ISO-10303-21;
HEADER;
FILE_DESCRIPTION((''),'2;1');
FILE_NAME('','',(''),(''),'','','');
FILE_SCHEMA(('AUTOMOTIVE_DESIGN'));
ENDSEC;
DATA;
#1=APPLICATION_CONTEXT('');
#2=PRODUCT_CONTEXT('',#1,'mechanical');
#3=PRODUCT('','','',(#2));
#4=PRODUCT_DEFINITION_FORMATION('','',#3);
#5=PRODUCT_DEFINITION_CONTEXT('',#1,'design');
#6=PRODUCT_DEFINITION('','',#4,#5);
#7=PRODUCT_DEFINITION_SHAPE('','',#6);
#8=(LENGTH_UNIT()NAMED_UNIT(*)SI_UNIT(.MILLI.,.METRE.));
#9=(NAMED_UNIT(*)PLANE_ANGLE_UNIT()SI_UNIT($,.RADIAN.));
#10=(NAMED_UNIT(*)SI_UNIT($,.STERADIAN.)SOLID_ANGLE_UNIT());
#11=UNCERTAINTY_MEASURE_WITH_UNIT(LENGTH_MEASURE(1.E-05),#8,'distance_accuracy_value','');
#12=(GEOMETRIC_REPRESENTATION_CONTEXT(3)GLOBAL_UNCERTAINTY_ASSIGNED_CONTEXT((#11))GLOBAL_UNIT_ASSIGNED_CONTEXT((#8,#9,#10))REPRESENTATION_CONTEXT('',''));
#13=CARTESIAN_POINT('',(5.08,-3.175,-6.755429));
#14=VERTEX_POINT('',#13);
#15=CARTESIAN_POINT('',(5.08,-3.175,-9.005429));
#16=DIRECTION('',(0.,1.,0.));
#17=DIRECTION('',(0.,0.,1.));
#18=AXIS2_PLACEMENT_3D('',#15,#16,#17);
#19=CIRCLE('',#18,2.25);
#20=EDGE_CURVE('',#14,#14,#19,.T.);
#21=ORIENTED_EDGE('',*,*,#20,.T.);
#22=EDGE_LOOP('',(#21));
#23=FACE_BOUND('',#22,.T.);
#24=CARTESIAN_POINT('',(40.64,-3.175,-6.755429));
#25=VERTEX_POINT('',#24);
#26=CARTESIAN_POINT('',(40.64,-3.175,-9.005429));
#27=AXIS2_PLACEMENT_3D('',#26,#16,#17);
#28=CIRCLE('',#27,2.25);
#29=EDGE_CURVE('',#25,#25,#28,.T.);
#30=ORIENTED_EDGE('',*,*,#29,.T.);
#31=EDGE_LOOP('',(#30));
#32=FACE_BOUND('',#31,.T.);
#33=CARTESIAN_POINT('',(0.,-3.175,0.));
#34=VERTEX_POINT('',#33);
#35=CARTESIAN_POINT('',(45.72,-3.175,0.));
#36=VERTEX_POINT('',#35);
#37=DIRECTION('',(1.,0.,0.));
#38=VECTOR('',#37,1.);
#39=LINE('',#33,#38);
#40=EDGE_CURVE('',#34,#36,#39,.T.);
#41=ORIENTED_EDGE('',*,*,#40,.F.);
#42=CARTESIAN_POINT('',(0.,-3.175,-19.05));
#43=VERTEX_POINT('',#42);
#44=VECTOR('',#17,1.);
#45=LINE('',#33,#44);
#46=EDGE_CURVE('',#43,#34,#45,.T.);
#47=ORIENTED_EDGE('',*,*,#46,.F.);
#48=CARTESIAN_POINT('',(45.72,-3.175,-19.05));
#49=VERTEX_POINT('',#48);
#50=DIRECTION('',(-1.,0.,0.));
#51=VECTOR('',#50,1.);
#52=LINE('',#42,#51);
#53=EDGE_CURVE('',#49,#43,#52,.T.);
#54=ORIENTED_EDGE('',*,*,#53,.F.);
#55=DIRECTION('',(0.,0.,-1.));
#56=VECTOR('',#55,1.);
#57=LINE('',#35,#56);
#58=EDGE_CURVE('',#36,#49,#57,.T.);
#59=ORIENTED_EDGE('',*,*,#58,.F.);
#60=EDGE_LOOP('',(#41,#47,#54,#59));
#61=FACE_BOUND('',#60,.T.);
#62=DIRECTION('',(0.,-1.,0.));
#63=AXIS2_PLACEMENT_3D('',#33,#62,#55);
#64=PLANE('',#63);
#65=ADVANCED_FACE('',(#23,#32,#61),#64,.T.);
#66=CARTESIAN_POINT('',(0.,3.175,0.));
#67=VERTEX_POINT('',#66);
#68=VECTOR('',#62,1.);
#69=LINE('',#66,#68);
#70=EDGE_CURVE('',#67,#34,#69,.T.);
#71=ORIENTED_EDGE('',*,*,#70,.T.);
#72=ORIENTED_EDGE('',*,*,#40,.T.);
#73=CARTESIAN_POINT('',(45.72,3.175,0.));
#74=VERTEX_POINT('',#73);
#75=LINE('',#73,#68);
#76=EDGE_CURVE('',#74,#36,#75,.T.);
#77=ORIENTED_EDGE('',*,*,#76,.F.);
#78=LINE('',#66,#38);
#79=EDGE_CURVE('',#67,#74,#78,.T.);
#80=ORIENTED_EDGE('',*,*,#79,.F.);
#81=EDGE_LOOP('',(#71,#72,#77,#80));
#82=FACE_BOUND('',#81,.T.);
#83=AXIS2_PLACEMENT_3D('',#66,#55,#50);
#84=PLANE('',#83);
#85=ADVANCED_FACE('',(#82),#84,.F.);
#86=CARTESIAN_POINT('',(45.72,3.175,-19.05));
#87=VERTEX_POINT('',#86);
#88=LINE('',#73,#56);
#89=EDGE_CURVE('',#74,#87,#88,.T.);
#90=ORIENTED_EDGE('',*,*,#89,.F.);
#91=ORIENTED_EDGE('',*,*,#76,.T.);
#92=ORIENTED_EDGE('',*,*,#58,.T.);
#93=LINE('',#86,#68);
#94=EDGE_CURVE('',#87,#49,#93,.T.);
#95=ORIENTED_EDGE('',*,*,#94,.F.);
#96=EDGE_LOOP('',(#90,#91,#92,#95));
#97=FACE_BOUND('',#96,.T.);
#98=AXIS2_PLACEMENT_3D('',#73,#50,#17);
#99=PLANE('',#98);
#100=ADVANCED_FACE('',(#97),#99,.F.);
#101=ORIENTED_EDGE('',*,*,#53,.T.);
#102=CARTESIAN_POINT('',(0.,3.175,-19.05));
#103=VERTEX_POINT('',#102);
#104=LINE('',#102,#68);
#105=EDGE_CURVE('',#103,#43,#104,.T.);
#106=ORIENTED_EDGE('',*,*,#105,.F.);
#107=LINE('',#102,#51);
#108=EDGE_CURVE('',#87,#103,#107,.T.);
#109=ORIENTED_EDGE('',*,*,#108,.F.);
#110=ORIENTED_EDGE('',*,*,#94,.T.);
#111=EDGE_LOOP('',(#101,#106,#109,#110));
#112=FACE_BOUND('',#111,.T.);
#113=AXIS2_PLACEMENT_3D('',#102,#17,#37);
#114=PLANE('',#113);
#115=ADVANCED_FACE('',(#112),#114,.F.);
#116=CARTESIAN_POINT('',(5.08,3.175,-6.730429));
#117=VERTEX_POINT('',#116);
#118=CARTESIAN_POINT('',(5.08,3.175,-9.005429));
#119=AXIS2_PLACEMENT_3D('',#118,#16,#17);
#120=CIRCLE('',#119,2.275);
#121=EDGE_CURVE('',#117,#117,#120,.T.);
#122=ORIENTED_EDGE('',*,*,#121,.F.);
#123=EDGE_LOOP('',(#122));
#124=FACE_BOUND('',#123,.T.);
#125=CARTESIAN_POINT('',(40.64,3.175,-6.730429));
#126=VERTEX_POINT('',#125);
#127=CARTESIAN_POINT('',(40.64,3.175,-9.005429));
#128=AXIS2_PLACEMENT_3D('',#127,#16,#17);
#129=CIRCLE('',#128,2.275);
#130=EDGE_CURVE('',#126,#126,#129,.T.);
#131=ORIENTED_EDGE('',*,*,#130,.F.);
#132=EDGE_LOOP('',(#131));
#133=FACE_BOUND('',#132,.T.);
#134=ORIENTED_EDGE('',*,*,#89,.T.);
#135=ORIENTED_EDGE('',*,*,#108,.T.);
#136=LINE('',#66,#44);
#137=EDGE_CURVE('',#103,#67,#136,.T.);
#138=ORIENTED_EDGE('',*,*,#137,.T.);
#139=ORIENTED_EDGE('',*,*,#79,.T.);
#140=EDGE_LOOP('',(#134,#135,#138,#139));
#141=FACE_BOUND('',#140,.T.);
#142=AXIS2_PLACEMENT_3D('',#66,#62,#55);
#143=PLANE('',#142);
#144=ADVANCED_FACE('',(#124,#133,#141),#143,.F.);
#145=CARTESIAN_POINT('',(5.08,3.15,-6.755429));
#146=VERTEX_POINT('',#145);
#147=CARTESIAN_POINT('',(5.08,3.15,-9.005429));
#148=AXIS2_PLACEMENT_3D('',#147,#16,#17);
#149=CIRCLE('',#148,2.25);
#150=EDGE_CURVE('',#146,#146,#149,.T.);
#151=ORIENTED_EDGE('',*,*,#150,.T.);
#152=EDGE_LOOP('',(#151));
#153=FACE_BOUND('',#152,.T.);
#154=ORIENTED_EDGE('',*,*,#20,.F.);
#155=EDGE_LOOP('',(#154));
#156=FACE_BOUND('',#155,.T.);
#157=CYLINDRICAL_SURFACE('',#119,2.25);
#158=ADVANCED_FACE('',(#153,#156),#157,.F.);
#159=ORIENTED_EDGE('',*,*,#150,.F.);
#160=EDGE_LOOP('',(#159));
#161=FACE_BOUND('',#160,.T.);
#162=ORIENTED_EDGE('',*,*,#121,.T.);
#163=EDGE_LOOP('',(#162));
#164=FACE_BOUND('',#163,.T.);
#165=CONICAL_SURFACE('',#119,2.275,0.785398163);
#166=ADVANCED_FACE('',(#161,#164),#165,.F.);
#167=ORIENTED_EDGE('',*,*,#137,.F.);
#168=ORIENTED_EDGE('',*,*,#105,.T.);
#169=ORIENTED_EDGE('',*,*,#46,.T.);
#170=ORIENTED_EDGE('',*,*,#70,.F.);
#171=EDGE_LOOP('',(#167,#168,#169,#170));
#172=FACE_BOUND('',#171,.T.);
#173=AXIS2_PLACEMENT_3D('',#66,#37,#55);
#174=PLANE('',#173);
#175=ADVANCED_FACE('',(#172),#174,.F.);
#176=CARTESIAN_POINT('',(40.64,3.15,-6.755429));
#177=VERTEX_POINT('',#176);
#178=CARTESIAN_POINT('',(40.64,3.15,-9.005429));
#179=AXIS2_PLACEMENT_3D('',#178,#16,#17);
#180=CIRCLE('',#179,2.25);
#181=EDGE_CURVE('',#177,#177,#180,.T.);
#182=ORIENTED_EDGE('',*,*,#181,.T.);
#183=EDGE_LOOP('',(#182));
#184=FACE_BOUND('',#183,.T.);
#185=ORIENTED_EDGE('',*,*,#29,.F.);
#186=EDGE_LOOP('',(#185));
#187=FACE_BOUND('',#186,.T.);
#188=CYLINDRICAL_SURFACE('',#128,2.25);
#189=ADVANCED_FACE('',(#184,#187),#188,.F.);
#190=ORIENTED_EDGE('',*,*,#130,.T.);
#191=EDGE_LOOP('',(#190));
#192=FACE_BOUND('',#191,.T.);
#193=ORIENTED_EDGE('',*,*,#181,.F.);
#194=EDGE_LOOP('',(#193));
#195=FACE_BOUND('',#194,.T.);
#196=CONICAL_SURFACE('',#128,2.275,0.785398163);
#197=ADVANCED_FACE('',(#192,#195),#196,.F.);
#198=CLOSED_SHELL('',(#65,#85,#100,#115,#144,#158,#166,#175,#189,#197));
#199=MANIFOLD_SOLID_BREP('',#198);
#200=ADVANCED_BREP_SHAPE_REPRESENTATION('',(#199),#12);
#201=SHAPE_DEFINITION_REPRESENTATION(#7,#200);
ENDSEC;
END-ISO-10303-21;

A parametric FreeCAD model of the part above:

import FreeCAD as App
import Part
import Sketcher
Q = App.Units.Quantity


def add_polygon(sketch, points):
    """Adds a closed chain of lines whose ends are joined by coincident constraints."""
    first, n = sketch.GeometryCount, len(points)
    for a, b in zip(points, points[1:] + points[:1]):
        sketch.addGeometry(Part.LineSegment(App.Vector(*a, 0), App.Vector(*b, 0)), False)
    for i in range(n):
        sketch.addConstraint(Sketcher.Constraint("Coincident", first + i, 2, first + (i + 1) % n, 1))

doc = App.newDocument("Part")
params = doc.addObject("Spreadsheet::Sheet", "Params")
for row, (alias, value) in enumerate([
    ("sketch1_width", "1.8 in"),
    ("sketch1_height", "0.75 in"),
    ("pad1_length", "0.25 in"),
    ("hole_diameter", "4.5 mm"),
    ("hole_csink_diameter", "4.55 mm"),
], start=1):
    params.set(f"A{row}", alias)
    params.set(f"B{row}", "=" + value)
    params.setAlias(f"B{row}", alias)

body = doc.addObject("PartDesign::Body", "Body")

# Sketch on XZ plane
sketch1 = doc.addObject("Sketcher::SketchObject", "Sketch")
body.addObject(sketch1)
sketch1.AttachmentSupport = (doc.XZ_Plane, [""])
sketch1.MapMode = "FlatFace"
add_polygon(sketch1, [(0, -19.05), (0, 0), (45.72, 0), (45.72, -19.05)])  # lines 0-3
sketch1.addConstraint([
    Sketcher.Constraint("Vertical", 0),
    Sketcher.Constraint("Horizontal", 1),
    Sketcher.Constraint("Vertical", 2),
    Sketcher.Constraint("Horizontal", 3),
    Sketcher.Constraint("Coincident", 0, 2, -1, 1),
    Sketcher.Constraint("DistanceX", 1, 1, 1, 2, Q("1.8 in")),
    Sketcher.Constraint("DistanceY", 0, 1, 0, 2, Q("0.75 in")),
])
sketch1.setExpression("Constraints[9]", "Params.sketch1_width")
sketch1.setExpression("Constraints[10]", "Params.sketch1_height")
pad1 = doc.addObject("PartDesign::Pad", "Pad")
body.addObject(pad1)
pad1.Profile = sketch1
pad1.setExpression("Length", "Params.pad1_length")
pad1.Midplane = True

# Sketch on XZ plane
sketch2 = doc.addObject("Sketcher::SketchObject", "Sketch001")
body.addObject(sketch2)
sketch2.AttachmentSupport = (doc.XZ_Plane, [""])
sketch2.MapMode = "FlatFace"
sketch2.AttachmentOffset = App.Placement(App.Vector(0, 0, -0.125 * 25.4), App.Rotation())
sketch2.addGeometry([
    Part.Circle(App.Vector(5.08, -9.005429, 0), App.Vector(0, 0, 1), 2.25),
    Part.Circle(App.Vector(40.64, -9.005429, 0), App.Vector(0, 0, 1), 2.25),
], False)
sketch2.addConstraint([
    Sketcher.Constraint("Equal", 0, 1),
    Sketcher.Constraint("Horizontal", 0, 3, 1, 3),
    Sketcher.Constraint("DistanceX", -1, 1, 0, 3, Q("0.2 in")),
    Sketcher.Constraint("DistanceX", -1, 1, 1, 3, Q("1.6 in")),
    Sketcher.Constraint("Diameter", 0, 4.5),
    Sketcher.Constraint("DistanceY", 0, 3, -1, 1, 9.005429),
])
doc.recompute()
hole = doc.addObject("PartDesign::Hole", "Hole")
body.addObject(hole)
hole.Profile = sketch2
hole.ThreadType = "None"
hole.setExpression("Diameter", "Params.hole_diameter")
hole.DepthType = "ThroughAll"
hole.HoleCutType = "Countersink"
hole.setExpression("HoleCutDiameter", "Params.hole_csink_diameter")
hole.HoleCutCountersinkAngle = 90
hole.Reversed = True

doc.recompute()
